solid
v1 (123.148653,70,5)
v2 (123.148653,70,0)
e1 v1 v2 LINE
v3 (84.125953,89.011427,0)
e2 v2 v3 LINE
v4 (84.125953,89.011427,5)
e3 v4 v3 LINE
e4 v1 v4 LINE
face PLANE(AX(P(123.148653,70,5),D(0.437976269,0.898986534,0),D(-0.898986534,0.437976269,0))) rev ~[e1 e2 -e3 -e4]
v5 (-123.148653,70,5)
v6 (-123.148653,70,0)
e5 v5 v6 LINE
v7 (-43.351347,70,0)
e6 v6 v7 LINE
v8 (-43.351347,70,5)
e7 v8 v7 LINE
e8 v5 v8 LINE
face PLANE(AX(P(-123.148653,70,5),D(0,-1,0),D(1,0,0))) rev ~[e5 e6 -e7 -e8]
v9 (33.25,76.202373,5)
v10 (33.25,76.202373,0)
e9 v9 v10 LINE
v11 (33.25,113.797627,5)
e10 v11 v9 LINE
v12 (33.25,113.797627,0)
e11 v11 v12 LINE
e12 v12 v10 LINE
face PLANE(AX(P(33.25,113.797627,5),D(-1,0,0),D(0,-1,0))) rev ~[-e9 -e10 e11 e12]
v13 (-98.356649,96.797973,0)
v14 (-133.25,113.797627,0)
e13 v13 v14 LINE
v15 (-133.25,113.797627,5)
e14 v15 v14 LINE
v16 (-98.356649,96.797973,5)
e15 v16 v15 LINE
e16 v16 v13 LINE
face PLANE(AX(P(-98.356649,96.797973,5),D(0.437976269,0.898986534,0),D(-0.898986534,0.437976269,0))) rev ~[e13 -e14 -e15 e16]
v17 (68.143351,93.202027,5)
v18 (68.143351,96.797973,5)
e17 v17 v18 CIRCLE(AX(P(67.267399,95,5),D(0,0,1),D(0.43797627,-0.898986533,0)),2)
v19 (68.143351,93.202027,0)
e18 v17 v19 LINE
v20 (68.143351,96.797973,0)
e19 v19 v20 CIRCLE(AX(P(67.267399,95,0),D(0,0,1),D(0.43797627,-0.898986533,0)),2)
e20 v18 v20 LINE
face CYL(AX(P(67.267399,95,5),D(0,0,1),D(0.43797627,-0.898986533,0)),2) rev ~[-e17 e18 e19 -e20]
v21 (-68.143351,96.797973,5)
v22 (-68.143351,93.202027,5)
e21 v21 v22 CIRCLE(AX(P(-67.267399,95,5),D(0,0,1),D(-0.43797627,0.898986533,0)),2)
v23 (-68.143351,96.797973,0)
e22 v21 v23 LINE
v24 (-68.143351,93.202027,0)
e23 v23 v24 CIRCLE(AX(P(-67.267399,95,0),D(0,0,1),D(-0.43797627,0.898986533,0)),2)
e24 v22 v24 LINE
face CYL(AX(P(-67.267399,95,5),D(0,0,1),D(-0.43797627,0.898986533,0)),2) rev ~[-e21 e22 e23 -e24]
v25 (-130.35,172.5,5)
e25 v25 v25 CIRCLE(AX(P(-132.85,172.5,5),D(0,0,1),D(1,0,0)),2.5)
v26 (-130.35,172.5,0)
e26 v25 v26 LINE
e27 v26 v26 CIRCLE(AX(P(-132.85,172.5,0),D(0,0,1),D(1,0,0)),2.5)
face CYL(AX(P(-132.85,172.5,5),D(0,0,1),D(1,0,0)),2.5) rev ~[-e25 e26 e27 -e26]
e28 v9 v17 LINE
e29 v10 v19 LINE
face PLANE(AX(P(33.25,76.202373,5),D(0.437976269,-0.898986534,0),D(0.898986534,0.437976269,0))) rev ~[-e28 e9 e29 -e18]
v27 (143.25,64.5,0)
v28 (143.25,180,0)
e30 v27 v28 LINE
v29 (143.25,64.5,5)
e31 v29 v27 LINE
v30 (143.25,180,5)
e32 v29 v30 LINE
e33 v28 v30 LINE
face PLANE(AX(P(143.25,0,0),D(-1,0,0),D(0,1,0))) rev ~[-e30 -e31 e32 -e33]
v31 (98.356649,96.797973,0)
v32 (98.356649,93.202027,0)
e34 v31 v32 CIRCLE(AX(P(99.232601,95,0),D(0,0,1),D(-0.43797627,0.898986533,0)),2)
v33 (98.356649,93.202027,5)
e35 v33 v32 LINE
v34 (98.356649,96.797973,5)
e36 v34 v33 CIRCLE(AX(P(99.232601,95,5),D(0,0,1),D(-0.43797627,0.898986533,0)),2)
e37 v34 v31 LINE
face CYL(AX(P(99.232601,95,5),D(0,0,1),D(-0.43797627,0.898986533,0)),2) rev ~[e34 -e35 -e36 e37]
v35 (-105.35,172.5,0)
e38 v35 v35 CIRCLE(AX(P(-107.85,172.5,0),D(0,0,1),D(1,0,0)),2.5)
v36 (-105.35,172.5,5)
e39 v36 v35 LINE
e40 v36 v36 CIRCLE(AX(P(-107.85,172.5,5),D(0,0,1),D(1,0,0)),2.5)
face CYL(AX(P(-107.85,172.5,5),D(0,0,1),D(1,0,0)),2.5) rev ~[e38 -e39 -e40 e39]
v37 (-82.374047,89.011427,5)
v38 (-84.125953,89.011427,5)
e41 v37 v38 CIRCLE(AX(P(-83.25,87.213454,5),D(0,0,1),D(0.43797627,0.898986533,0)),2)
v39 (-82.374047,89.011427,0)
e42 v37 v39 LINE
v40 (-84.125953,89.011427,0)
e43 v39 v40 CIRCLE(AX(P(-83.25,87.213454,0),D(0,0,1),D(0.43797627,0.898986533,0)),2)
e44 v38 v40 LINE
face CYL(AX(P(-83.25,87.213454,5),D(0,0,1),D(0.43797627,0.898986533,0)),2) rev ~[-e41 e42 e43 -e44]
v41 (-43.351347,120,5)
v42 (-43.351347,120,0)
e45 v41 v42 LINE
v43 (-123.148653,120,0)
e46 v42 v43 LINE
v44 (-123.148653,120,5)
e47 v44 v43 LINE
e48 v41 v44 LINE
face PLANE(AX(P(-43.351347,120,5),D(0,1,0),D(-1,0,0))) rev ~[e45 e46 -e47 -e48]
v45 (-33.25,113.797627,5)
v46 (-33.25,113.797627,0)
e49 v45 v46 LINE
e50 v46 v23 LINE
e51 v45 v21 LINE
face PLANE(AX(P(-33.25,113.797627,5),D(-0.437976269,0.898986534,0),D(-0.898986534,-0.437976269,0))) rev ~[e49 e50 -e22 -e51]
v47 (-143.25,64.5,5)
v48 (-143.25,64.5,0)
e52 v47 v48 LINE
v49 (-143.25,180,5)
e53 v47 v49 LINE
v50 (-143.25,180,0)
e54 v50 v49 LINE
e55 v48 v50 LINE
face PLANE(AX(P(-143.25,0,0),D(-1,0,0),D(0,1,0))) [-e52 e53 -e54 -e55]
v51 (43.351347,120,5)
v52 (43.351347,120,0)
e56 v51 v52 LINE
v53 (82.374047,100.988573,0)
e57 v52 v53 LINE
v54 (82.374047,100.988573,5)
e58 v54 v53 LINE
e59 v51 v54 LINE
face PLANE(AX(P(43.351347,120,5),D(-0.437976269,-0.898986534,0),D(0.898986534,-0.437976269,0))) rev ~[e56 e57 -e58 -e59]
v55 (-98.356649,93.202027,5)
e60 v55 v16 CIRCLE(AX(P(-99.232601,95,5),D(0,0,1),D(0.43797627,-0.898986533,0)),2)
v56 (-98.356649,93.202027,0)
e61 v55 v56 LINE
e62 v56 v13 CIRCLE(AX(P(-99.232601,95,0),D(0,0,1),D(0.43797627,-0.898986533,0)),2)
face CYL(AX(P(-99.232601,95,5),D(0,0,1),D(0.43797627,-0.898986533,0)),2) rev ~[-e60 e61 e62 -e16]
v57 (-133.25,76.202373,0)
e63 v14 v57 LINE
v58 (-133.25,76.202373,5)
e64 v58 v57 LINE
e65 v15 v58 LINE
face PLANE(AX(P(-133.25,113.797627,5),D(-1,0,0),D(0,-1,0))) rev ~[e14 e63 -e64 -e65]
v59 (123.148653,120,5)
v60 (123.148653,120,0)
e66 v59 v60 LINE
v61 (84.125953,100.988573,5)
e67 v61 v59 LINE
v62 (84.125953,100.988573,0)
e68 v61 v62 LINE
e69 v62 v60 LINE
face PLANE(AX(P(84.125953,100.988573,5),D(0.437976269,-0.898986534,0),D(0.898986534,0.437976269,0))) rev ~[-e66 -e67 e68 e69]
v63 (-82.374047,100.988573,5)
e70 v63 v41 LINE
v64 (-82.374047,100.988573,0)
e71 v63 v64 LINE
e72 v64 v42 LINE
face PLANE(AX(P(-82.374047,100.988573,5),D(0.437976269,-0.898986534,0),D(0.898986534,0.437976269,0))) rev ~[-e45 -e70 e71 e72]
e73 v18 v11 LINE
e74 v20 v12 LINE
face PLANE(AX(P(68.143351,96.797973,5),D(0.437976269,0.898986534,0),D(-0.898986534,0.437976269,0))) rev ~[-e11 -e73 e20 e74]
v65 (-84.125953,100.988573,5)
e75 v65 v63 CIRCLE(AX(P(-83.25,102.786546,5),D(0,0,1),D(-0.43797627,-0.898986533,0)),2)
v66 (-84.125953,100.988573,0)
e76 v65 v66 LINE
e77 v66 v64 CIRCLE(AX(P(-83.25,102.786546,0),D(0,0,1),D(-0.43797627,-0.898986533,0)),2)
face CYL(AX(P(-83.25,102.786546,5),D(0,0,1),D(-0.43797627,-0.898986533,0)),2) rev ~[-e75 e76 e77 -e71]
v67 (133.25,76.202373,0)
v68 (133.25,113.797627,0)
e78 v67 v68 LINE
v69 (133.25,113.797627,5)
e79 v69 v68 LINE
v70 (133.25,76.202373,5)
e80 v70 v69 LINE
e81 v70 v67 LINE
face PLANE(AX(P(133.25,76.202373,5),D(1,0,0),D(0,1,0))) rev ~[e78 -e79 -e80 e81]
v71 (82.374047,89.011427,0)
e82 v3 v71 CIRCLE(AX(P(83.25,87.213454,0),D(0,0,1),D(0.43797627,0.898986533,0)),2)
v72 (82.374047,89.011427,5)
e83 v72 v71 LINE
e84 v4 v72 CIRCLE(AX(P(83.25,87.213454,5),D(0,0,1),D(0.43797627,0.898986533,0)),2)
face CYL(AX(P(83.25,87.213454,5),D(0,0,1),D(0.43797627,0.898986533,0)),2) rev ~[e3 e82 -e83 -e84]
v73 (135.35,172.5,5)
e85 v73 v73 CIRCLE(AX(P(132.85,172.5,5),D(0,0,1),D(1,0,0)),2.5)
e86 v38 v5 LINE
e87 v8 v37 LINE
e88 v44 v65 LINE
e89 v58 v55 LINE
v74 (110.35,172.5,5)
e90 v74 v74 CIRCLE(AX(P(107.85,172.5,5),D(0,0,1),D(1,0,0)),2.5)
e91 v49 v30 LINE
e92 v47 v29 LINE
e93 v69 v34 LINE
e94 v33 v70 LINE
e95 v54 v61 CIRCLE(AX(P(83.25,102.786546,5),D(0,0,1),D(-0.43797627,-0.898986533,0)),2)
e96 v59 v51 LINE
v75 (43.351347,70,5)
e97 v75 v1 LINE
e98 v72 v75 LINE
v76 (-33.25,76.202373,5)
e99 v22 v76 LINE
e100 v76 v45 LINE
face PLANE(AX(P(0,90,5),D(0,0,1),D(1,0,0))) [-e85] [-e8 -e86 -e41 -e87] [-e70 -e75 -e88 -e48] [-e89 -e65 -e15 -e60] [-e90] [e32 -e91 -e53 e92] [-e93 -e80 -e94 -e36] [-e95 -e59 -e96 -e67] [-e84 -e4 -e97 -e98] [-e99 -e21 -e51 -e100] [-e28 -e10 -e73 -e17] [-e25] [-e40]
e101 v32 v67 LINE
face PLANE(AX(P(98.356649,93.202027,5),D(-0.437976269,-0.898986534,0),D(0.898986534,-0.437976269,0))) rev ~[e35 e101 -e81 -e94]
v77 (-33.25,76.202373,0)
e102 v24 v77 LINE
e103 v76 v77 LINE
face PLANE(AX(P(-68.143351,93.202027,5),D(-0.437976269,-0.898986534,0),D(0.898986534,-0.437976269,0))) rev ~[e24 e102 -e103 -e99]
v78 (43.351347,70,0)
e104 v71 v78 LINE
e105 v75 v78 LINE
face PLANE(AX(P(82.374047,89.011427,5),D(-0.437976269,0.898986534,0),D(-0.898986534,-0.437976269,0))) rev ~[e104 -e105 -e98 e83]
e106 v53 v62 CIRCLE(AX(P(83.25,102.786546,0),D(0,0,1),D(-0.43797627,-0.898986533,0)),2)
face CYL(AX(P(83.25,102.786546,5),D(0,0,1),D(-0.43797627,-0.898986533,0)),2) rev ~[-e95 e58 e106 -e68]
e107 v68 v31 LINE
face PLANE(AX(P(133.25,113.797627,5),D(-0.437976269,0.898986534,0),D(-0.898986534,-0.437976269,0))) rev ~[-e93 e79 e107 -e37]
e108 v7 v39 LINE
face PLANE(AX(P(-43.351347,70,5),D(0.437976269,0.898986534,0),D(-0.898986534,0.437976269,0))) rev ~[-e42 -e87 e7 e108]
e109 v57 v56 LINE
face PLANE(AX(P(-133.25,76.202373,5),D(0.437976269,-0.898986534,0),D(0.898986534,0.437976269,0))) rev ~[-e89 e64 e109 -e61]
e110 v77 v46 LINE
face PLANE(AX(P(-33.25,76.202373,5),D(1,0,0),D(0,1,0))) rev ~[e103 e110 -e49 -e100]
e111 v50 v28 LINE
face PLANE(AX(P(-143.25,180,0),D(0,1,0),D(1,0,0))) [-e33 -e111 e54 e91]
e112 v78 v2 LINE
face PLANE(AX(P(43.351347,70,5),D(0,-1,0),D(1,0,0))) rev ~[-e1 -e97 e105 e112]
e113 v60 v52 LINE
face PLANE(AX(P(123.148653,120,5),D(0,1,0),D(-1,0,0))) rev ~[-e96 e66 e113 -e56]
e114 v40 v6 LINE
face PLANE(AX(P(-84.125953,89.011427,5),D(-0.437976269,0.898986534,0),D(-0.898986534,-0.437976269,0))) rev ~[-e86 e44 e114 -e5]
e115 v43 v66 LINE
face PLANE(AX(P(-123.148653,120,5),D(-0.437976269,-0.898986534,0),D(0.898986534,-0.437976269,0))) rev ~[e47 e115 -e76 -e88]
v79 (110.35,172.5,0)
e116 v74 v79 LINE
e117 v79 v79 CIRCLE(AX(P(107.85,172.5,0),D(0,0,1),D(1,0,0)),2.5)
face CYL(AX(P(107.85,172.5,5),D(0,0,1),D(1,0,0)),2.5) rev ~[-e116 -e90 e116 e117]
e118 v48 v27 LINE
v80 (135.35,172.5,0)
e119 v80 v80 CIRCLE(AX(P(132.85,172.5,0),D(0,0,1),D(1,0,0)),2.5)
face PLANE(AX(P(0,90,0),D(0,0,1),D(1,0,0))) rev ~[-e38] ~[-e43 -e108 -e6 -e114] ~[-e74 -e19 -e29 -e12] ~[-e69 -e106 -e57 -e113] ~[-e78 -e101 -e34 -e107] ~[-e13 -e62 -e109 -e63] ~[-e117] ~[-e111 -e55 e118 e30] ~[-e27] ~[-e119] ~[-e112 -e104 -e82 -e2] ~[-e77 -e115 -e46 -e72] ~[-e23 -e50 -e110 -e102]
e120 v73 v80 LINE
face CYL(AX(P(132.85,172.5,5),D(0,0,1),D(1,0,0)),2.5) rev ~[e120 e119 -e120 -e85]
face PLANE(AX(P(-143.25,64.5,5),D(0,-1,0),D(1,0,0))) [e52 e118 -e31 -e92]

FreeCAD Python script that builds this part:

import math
import FreeCAD as App
import Part
import Sketcher


def add_polygon(sketch, points):
    """Adds a closed chain of lines whose ends are joined by coincident constraints."""
    first, n = sketch.GeometryCount, len(points)
    for a, b in zip(points, points[1:] + points[:1]):
        sketch.addGeometry(Part.LineSegment(App.Vector(*a, 0), App.Vector(*b, 0)), False)
    for i in range(n):
        sketch.addConstraint(Sketcher.Constraint("Coincident", first + i, 2, first + (i + 1) % n, 1))

doc = App.newDocument("Part")
params = doc.addObject("Spreadsheet::Sheet", "Params")
for row, (alias, value) in enumerate([
    ("sketch1_height", "180 mm"),
    ("sketch1_width", "286.5 mm"),
    ("pad1_length", "5 mm"),
    ("sketch2_diameter", "5 mm"),
    ("sketch2_radius", "2 mm"),
    ("pocket1_length", "13 mm"),
    ("sketch3_width", "286.5 mm"),
    ("sketch3_height", "64.5 mm"),
], start=1):
    params.set(f"A{row}", alias)
    params.set(f"B{row}", "=" + value)
    params.setAlias(f"B{row}", alias)

body = doc.addObject("PartDesign::Body", "Body")

sketch1 = doc.addObject("Sketcher::SketchObject", "Sketch")
body.addObject(sketch1)
sketch1.AttachmentSupport = (doc.XY_Plane, [""])
sketch1.MapMode = "FlatFace"
add_polygon(sketch1, [(-143, 180), (-143, 0), (143, 0), (143, 180)])
sketch1.addConstraint(Sketcher.Constraint("Vertical", 0))
sketch1.addConstraint(Sketcher.Constraint("Horizontal", 1))
sketch1.addConstraint(Sketcher.Constraint("Vertical", 2))
sketch1.addConstraint(Sketcher.Constraint("Horizontal", 3))
sketch1.addConstraint(Sketcher.Constraint("Symmetric", 0, 2, 1, 2, -1, 1))
sketch1.addConstraint(Sketcher.Constraint("DistanceY", 0, 2, 0, 1, 180.0))
sketch1.addConstraint(Sketcher.Constraint("DistanceX", 1, 1, 1, 2, 286.5))
sketch1.setExpression("Constraints[9]", "Params.sketch1_height")
sketch1.setExpression("Constraints[10]", "Params.sketch1_width")
pad1 = doc.addObject("PartDesign::Pad", "Pad")
body.addObject(pad1)
pad1.Profile = sketch1
pad1.setExpression("Length", "Params.pad1_length")

sketch2 = doc.addObject("Sketcher::SketchObject", "Sketch001")
body.addObject(sketch2)
sketch2.AttachmentSupport = (doc.XY_Plane, [""])
sketch2.MapMode = "FlatFace"
sketch2.AttachmentOffset = App.Placement(App.Vector(0, 0, 5), App.Rotation())
sketch2.addGeometry(Part.Circle(App.Vector(-132.8, 172.5, 0), App.Vector(0, 0, 1), 2.5), False)
sketch2.addGeometry(Part.Circle(App.Vector(-107.8, 172.5, 0), App.Vector(0, 0, 1), 2.5), False)
sketch2.addGeometry(Part.LineSegment(App.Vector(-82.4, 101, 0), App.Vector(-43.4, 120, 0)), False)
sketch2.addGeometry(Part.LineSegment(App.Vector(-43.4, 120, 0), App.Vector(-123.1, 120, 0)), False)
sketch2.addGeometry(Part.LineSegment(App.Vector(-123.1, 120, 0), App.Vector(-84.1, 101, 0)), False)
sketch2.addGeometry(Part.ArcOfCircle(Part.Circle(App.Vector(-83.2, 102.8, 0), App.Vector(0, 0, 1), 2), math.radians(-116), math.radians(-64)), False)
sketch2.addGeometry(Part.LineSegment(App.Vector(-133.2, 113.8, 0), App.Vector(-133.2, 76.2, 0)), False)
sketch2.addGeometry(Part.LineSegment(App.Vector(-133.2, 76.2, 0), App.Vector(-98.4, 93.2, 0)), False)
sketch2.addGeometry(Part.ArcOfCircle(Part.Circle(App.Vector(-99.2, 95, 0), App.Vector(0, 0, 1), 2), math.radians(-64), math.radians(64)), False)
sketch2.addGeometry(Part.LineSegment(App.Vector(-98.4, 96.8, 0), App.Vector(-133.2, 113.8, 0)), False)
sketch2.addGeometry(Part.LineSegment(App.Vector(-68.1, 93.2, 0), App.Vector(-33.2, 76.2, 0)), False)
sketch2.addGeometry(Part.LineSegment(App.Vector(-33.2, 76.2, 0), App.Vector(-33.2, 113.8, 0)), False)
sketch2.addGeometry(Part.LineSegment(App.Vector(-33.2, 113.8, 0), App.Vector(-68.1, 96.8, 0)), False)
sketch2.addGeometry(Part.ArcOfCircle(Part.Circle(App.Vector(-67.3, 95, 0), App.Vector(0, 0, 1), 2), math.radians(116), math.radians(244)), False)
sketch2.addGeometry(Part.LineSegment(App.Vector(-43.4, 70, 0), App.Vector(-82.4, 89, 0)), False)
sketch2.addGeometry(Part.ArcOfCircle(Part.Circle(App.Vector(-83.2, 87.2, 0), App.Vector(0, 0, 1), 2), math.radians(64), math.radians(116)), False)
sketch2.addGeometry(Part.LineSegment(App.Vector(-84.1, 89, 0), App.Vector(-123.1, 70, 0)), False)
sketch2.addGeometry(Part.LineSegment(App.Vector(-123.1, 70, 0), App.Vector(-43.4, 70, 0)), False)
sketch2.addGeometry(Part.LineSegment(App.Vector(-43.4, 60, 0), App.Vector(-123.1, 60, 0)), False)
sketch2.addGeometry(Part.LineSegment(App.Vector(-123.1, 60, 0), App.Vector(-84.1, 41, 0)), False)
sketch2.addGeometry(Part.ArcOfCircle(Part.Circle(App.Vector(-83.2, 42.8, 0), App.Vector(0, 0, 1), 2), math.radians(-116), math.radians(-64)), False)
sketch2.addGeometry(Part.LineSegment(App.Vector(-82.4, 41, 0), App.Vector(-43.4, 60, 0)), False)
sketch2.addGeometry(Part.LineSegment(App.Vector(-98.4, 36.8, 0), App.Vector(-133.2, 53.8, 0)), False)
sketch2.addGeometry(Part.LineSegment(App.Vector(-133.2, 53.8, 0), App.Vector(-133.2, 16.2, 0)), False)
sketch2.addGeometry(Part.LineSegment(App.Vector(-133.2, 16.2, 0), App.Vector(-98.4, 33.2, 0)), False)
sketch2.addGeometry(Part.ArcOfCircle(Part.Circle(App.Vector(-99.2, 35, 0), App.Vector(0, 0, 1), 2), math.radians(-64), math.radians(64)), False)
sketch2.addGeometry(Part.LineSegment(App.Vector(-33.2, 16.2, 0), App.Vector(-33.2, 53.8, 0)), False)
sketch2.addGeometry(Part.LineSegment(App.Vector(-33.2, 53.8, 0), App.Vector(-68.1, 36.8, 0)), False)
sketch2.addGeometry(Part.ArcOfCircle(Part.Circle(App.Vector(-67.3, 35, 0), App.Vector(0, 0, 1), 2), math.radians(116), math.radians(244)), False)
sketch2.addGeometry(Part.LineSegment(App.Vector(-68.1, 33.2, 0), App.Vector(-33.2, 16.2, 0)), False)
sketch2.addGeometry(Part.LineSegment(App.Vector(-84.1, 29, 0), App.Vector(-123.1, 10, 0)), False)
sketch2.addGeometry(Part.LineSegment(App.Vector(-123.1, 10, 0), App.Vector(-43.4, 10, 0)), False)
sketch2.addGeometry(Part.LineSegment(App.Vector(-43.4, 10, 0), App.Vector(-82.4, 29, 0)), False)
sketch2.addGeometry(Part.ArcOfCircle(Part.Circle(App.Vector(-83.2, 27.2, 0), App.Vector(0, 0, 1), 2), math.radians(64), math.radians(116)), False)
sketch2.addGeometry(Part.LineSegment(App.Vector(84.1, 101, 0), App.Vector(123.1, 120, 0)), False)
sketch2.addGeometry(Part.LineSegment(App.Vector(123.1, 120, 0), App.Vector(43.4, 120, 0)), False)
sketch2.addGeometry(Part.LineSegment(App.Vector(43.4, 120, 0), App.Vector(82.4, 101, 0)), False)
sketch2.addGeometry(Part.ArcOfCircle(Part.Circle(App.Vector(83.2, 102.8, 0), App.Vector(0, 0, 1), 2), math.radians(-116), math.radians(-64)), False)
sketch2.addGeometry(Part.LineSegment(App.Vector(33.2, 113.8, 0), App.Vector(33.2, 76.2, 0)), False)
sketch2.addGeometry(Part.LineSegment(App.Vector(33.2, 76.2, 0), App.Vector(68.1, 93.2, 0)), False)
sketch2.addGeometry(Part.ArcOfCircle(Part.Circle(App.Vector(67.3, 95, 0), App.Vector(0, 0, 1), 2), math.radians(-64), math.radians(64)), False)
sketch2.addGeometry(Part.LineSegment(App.Vector(68.1, 96.8, 0), App.Vector(33.2, 113.8, 0)), False)
sketch2.addGeometry(Part.LineSegment(App.Vector(98.4, 93.2, 0), App.Vector(133.2, 76.2, 0)), False)
sketch2.addGeometry(Part.LineSegment(App.Vector(133.2, 76.2, 0), App.Vector(133.2, 113.8, 0)), False)
sketch2.addGeometry(Part.LineSegment(App.Vector(133.2, 113.8, 0), App.Vector(98.4, 96.8, 0)), False)
sketch2.addGeometry(Part.ArcOfCircle(Part.Circle(App.Vector(99.2, 95, 0), App.Vector(0, 0, 1), 2), math.radians(116), math.radians(244)), False)
sketch2.addGeometry(Part.LineSegment(App.Vector(43.4, 70, 0), App.Vector(123.1, 70, 0)), False)
sketch2.addGeometry(Part.LineSegment(App.Vector(123.1, 70, 0), App.Vector(84.1, 89, 0)), False)
sketch2.addGeometry(Part.ArcOfCircle(Part.Circle(App.Vector(83.2, 87.2, 0), App.Vector(0, 0, 1), 2), math.radians(64), math.radians(116)), False)
sketch2.addGeometry(Part.LineSegment(App.Vector(82.4, 89, 0), App.Vector(43.4, 70, 0)), False)
sketch2.addGeometry(Part.LineSegment(App.Vector(43.4, 60, 0), App.Vector(82.4, 41, 0)), False)
sketch2.addGeometry(Part.ArcOfCircle(Part.Circle(App.Vector(83.2, 42.8, 0), App.Vector(0, 0, 1), 2), math.radians(-116), math.radians(-64)), False)
sketch2.addGeometry(Part.LineSegment(App.Vector(84.1, 41, 0), App.Vector(123.1, 60, 0)), False)
sketch2.addGeometry(Part.LineSegment(App.Vector(123.1, 60, 0), App.Vector(43.4, 60, 0)), False)
sketch2.addGeometry(Part.LineSegment(App.Vector(68.1, 36.8, 0), App.Vector(33.2, 53.8, 0)), False)
sketch2.addGeometry(Part.LineSegment(App.Vector(33.2, 53.8, 0), App.Vector(33.2, 16.2, 0)), False)
sketch2.addGeometry(Part.LineSegment(App.Vector(33.2, 16.2, 0), App.Vector(68.1, 33.2, 0)), False)
sketch2.addGeometry(Part.ArcOfCircle(Part.Circle(App.Vector(67.3, 35, 0), App.Vector(0, 0, 1), 2), math.radians(-64), math.radians(64)), False)
sketch2.addGeometry(Part.LineSegment(App.Vector(133.2, 16.2, 0), App.Vector(133.2, 53.8, 0)), False)
sketch2.addGeometry(Part.LineSegment(App.Vector(133.2, 53.8, 0), App.Vector(98.4, 36.8, 0)), False)
sketch2.addGeometry(Part.ArcOfCircle(Part.Circle(App.Vector(99.2, 35, 0), App.Vector(0, 0, 1), 2), math.radians(116), math.radians(244)), False)
sketch2.addGeometry(Part.LineSegment(App.Vector(98.4, 33.2, 0), App.Vector(133.2, 16.2, 0)), False)
sketch2.addGeometry(Part.LineSegment(App.Vector(82.4, 29, 0), App.Vector(43.4, 10, 0)), False)
sketch2.addGeometry(Part.LineSegment(App.Vector(43.4, 10, 0), App.Vector(123.1, 10, 0)), False)
sketch2.addGeometry(Part.LineSegment(App.Vector(123.1, 10, 0), App.Vector(84.1, 29, 0)), False)
sketch2.addGeometry(Part.ArcOfCircle(Part.Circle(App.Vector(83.2, 27.2, 0), App.Vector(0, 0, 1), 2), math.radians(64), math.radians(116)), False)
sketch2.addGeometry(Part.Circle(App.Vector(107.8, 172.5, 0), App.Vector(0, 0, 1), 2.5), False)
sketch2.addGeometry(Part.Circle(App.Vector(132.8, 172.5, 0), App.Vector(0, 0, 1), 2.5), False)
sketch2.addConstraint(Sketcher.Constraint("Coincident", 2, 2, 3, 1))
sketch2.addConstraint(Sketcher.Constraint("Coincident", 3, 2, 4, 1))
sketch2.addConstraint(Sketcher.Constraint("Tangent", 4, 2, 5, 1))
sketch2.addConstraint(Sketcher.Constraint("Tangent", 5, 2, 2, 1))
sketch2.addConstraint(Sketcher.Constraint("Coincident", 6, 2, 7, 1))
sketch2.addConstraint(Sketcher.Constraint("Tangent", 7, 2, 8, 1))
sketch2.addConstraint(Sketcher.Constraint("Tangent", 8, 2, 9, 1))
sketch2.addConstraint(Sketcher.Constraint("Coincident", 9, 2, 6, 1))
sketch2.addConstraint(Sketcher.Constraint("Coincident", 10, 2, 11, 1))
sketch2.addConstraint(Sketcher.Constraint("Coincident", 11, 2, 12, 1))
sketch2.addConstraint(Sketcher.Constraint("Tangent", 12, 2, 13, 1))
sketch2.addConstraint(Sketcher.Constraint("Tangent", 13, 2, 10, 1))
sketch2.addConstraint(Sketcher.Constraint("Tangent", 14, 2, 15, 1))
sketch2.addConstraint(Sketcher.Constraint("Tangent", 15, 2, 16, 1))
sketch2.addConstraint(Sketcher.Constraint("Coincident", 16, 2, 17, 1))
sketch2.addConstraint(Sketcher.Constraint("Coincident", 17, 2, 14, 1))
sketch2.addConstraint(Sketcher.Constraint("Coincident", 18, 2, 19, 1))
sketch2.addConstraint(Sketcher.Constraint("Tangent", 19, 2, 20, 1))
sketch2.addConstraint(Sketcher.Constraint("Tangent", 20, 2, 21, 1))
sketch2.addConstraint(Sketcher.Constraint("Coincident", 21, 2, 18, 1))
sketch2.addConstraint(Sketcher.Constraint("Coincident", 22, 2, 23, 1))
sketch2.addConstraint(Sketcher.Constraint("Coincident", 23, 2, 24, 1))
sketch2.addConstraint(Sketcher.Constraint("Tangent", 24, 2, 25, 1))
sketch2.addConstraint(Sketcher.Constraint("Tangent", 25, 2, 22, 1))
sketch2.addConstraint(Sketcher.Constraint("Coincident", 26, 2, 27, 1))
sketch2.addConstraint(Sketcher.Constraint("Tangent", 27, 2, 28, 1))
sketch2.addConstraint(Sketcher.Constraint("Tangent", 28, 2, 29, 1))
sketch2.addConstraint(Sketcher.Constraint("Coincident", 29, 2, 26, 1))
sketch2.addConstraint(Sketcher.Constraint("Coincident", 30, 2, 31, 1))
sketch2.addConstraint(Sketcher.Constraint("Coincident", 31, 2, 32, 1))
sketch2.addConstraint(Sketcher.Constraint("Tangent", 32, 2, 33, 1))
sketch2.addConstraint(Sketcher.Constraint("Tangent", 33, 2, 30, 1))
sketch2.addConstraint(Sketcher.Constraint("Coincident", 34, 2, 35, 1))
sketch2.addConstraint(Sketcher.Constraint("Coincident", 35, 2, 36, 1))
sketch2.addConstraint(Sketcher.Constraint("Tangent", 36, 2, 37, 1))
sketch2.addConstraint(Sketcher.Constraint("Tangent", 37, 2, 34, 1))
sketch2.addConstraint(Sketcher.Constraint("Coincident", 38, 2, 39, 1))
sketch2.addConstraint(Sketcher.Constraint("Tangent", 39, 2, 40, 1))
sketch2.addConstraint(Sketcher.Constraint("Tangent", 40, 2, 41, 1))
sketch2.addConstraint(Sketcher.Constraint("Coincident", 41, 2, 38, 1))
sketch2.addConstraint(Sketcher.Constraint("Coincident", 42, 2, 43, 1))
sketch2.addConstraint(Sketcher.Constraint("Coincident", 43, 2, 44, 1))
sketch2.addConstraint(Sketcher.Constraint("Tangent", 44, 2, 45, 1))
sketch2.addConstraint(Sketcher.Constraint("Tangent", 45, 2, 42, 1))
sketch2.addConstraint(Sketcher.Constraint("Coincident", 46, 2, 47, 1))
sketch2.addConstraint(Sketcher.Constraint("Tangent", 47, 2, 48, 1))
sketch2.addConstraint(Sketcher.Constraint("Tangent", 48, 2, 49, 1))
sketch2.addConstraint(Sketcher.Constraint("Coincident", 49, 2, 46, 1))
sketch2.addConstraint(Sketcher.Constraint("Tangent", 50, 2, 51, 1))
sketch2.addConstraint(Sketcher.Constraint("Tangent", 51, 2, 52, 1))
sketch2.addConstraint(Sketcher.Constraint("Coincident", 52, 2, 53, 1))
sketch2.addConstraint(Sketcher.Constraint("Coincident", 53, 2, 50, 1))
sketch2.addConstraint(Sketcher.Constraint("Coincident", 54, 2, 55, 1))
sketch2.addConstraint(Sketcher.Constraint("Coincident", 55, 2, 56, 1))
sketch2.addConstraint(Sketcher.Constraint("Tangent", 56, 2, 57, 1))
sketch2.addConstraint(Sketcher.Constraint("Tangent", 57, 2, 54, 1))
sketch2.addConstraint(Sketcher.Constraint("Coincident", 58, 2, 59, 1))
sketch2.addConstraint(Sketcher.Constraint("Tangent", 59, 2, 60, 1))
sketch2.addConstraint(Sketcher.Constraint("Tangent", 60, 2, 61, 1))
sketch2.addConstraint(Sketcher.Constraint("Coincident", 61, 2, 58, 1))
sketch2.addConstraint(Sketcher.Constraint("Coincident", 62, 2, 63, 1))
sketch2.addConstraint(Sketcher.Constraint("Coincident", 63, 2, 64, 1))
sketch2.addConstraint(Sketcher.Constraint("Tangent", 64, 2, 65, 1))
sketch2.addConstraint(Sketcher.Constraint("Tangent", 65, 2, 62, 1))
sketch2.addConstraint(Sketcher.Constraint("Horizontal", 3))
sketch2.addConstraint(Sketcher.Constraint("Vertical", 6))
sketch2.addConstraint(Sketcher.Constraint("Vertical", 11))
sketch2.addConstraint(Sketcher.Constraint("Horizontal", 17))
sketch2.addConstraint(Sketcher.Constraint("Horizontal", 18))
sketch2.addConstraint(Sketcher.Constraint("Vertical", 23))
sketch2.addConstraint(Sketcher.Constraint("Vertical", 26))
sketch2.addConstraint(Sketcher.Constraint("Horizontal", 31))
sketch2.addConstraint(Sketcher.Constraint("Horizontal", 35))
sketch2.addConstraint(Sketcher.Constraint("Vertical", 38))
sketch2.addConstraint(Sketcher.Constraint("Vertical", 43))
sketch2.addConstraint(Sketcher.Constraint("Horizontal", 46))
sketch2.addConstraint(Sketcher.Constraint("Horizontal", 53))
sketch2.addConstraint(Sketcher.Constraint("Vertical", 55))
sketch2.addConstraint(Sketcher.Constraint("Vertical", 58))
sketch2.addConstraint(Sketcher.Constraint("Horizontal", 63))
sketch2.addConstraint(Sketcher.Constraint("Equal", 0, 1))
sketch2.addConstraint(Sketcher.Constraint("Equal", 5, 8))
sketch2.addConstraint(Sketcher.Constraint("Equal", 8, 13))
sketch2.addConstraint(Sketcher.Constraint("Equal", 13, 15))
sketch2.addConstraint(Sketcher.Constraint("Equal", 15, 20))
sketch2.addConstraint(Sketcher.Constraint("Equal", 20, 25))
sketch2.addConstraint(Sketcher.Constraint("Equal", 25, 28))
sketch2.addConstraint(Sketcher.Constraint("Equal", 28, 33))
sketch2.addConstraint(Sketcher.Constraint("Equal", 33, 37))
sketch2.addConstraint(Sketcher.Constraint("Equal", 37, 40))
sketch2.addConstraint(Sketcher.Constraint("Equal", 40, 45))
sketch2.addConstraint(Sketcher.Constraint("Equal", 45, 48))
sketch2.addConstraint(Sketcher.Constraint("Equal", 48, 51))
sketch2.addConstraint(Sketcher.Constraint("Equal", 51, 57))
sketch2.addConstraint(Sketcher.Constraint("Equal", 57, 60))
sketch2.addConstraint(Sketcher.Constraint("Equal", 60, 65))
sketch2.addConstraint(Sketcher.Constraint("Equal", 1, 66))
sketch2.addConstraint(Sketcher.Constraint("Equal", 66, 67))
sketch2.addConstraint(Sketcher.Constraint("Symmetric", 5, 3, 37, 3, -2))
sketch2.addConstraint(Sketcher.Constraint("Symmetric", 13, 3, 40, 3, -2))
sketch2.addConstraint(Sketcher.Constraint("Symmetric", 8, 3, 45, 3, -2))
sketch2.addConstraint(Sketcher.Constraint("Symmetric", 15, 3, 48, 3, -2))
sketch2.addConstraint(Sketcher.Constraint("Symmetric", 20, 3, 51, 3, -2))
sketch2.addConstraint(Sketcher.Constraint("Symmetric", 28, 3, 57, 3, -2))
sketch2.addConstraint(Sketcher.Constraint("Symmetric", 25, 3, 60, 3, -2))
sketch2.addConstraint(Sketcher.Constraint("Symmetric", 33, 3, 65, 3, -2))
sketch2.addConstraint(Sketcher.Constraint("Symmetric", 1, 3, 66, 3, -2))
sketch2.addConstraint(Sketcher.Constraint("Symmetric", 0, 3, 67, 3, -2))
sketch2.addConstraint(Sketcher.Constraint("Symmetric", 3, 2, 34, 2, -2))
sketch2.addConstraint(Sketcher.Constraint("Symmetric", 10, 2, 38, 2, -2))
sketch2.addConstraint(Sketcher.Constraint("Symmetric", 6, 2, 42, 2, -2))
sketch2.addConstraint(Sketcher.Constraint("Symmetric", 16, 2, 46, 2, -2))
sketch2.addConstraint(Sketcher.Constraint("Symmetric", 18, 2, 52, 2, -2))
sketch2.addConstraint(Sketcher.Constraint("Symmetric", 26, 2, 54, 2, -2))
sketch2.addConstraint(Sketcher.Constraint("Symmetric", 22, 2, 58, 2, -2))
sketch2.addConstraint(Sketcher.Constraint("Symmetric", 31, 2, 62, 2, -2))
sketch2.addConstraint(Sketcher.Constraint("Parallel", 2, 7))
sketch2.addConstraint(Sketcher.Constraint("Parallel", 4, 9))
sketch2.addConstraint(Sketcher.Constraint("Parallel", 9, 10))
sketch2.addConstraint(Sketcher.Constraint("Parallel", 7, 12))
sketch2.addConstraint(Sketcher.Constraint("Parallel", 10, 14))
sketch2.addConstraint(Sketcher.Constraint("Parallel", 12, 16))
sketch2.addConstraint(Sketcher.Constraint("Parallel", 14, 19))
sketch2.addConstraint(Sketcher.Constraint("Parallel", 16, 21))
sketch2.addConstraint(Sketcher.Constraint("Parallel", 19, 22))
sketch2.addConstraint(Sketcher.Constraint("Parallel", 21, 24))
sketch2.addConstraint(Sketcher.Constraint("Parallel", 24, 27))
sketch2.addConstraint(Sketcher.Constraint("Parallel", 22, 29))
sketch2.addConstraint(Sketcher.Constraint("Parallel", 27, 30))
sketch2.addConstraint(Sketcher.Constraint("Parallel", 29, 32))
sketch2.addConstraint(Sketcher.Constraint("Parallel", 30, 34))
sketch2.addConstraint(Sketcher.Constraint("Parallel", 32, 36))
sketch2.addConstraint(Sketcher.Constraint("Parallel", 36, 41))
sketch2.addConstraint(Sketcher.Constraint("Parallel", 39, 44))
sketch2.addConstraint(Sketcher.Constraint("Parallel", 44, 49))
sketch2.addConstraint(Sketcher.Constraint("Parallel", 47, 50))
sketch2.addConstraint(Sketcher.Constraint("Parallel", 52, 56))
sketch2.addConstraint(Sketcher.Constraint("Parallel", 54, 61))
sketch2.addConstraint(Sketcher.Constraint("Parallel", 61, 64))
sketch2.addConstraint(Sketcher.Constraint("Horizontal", 0, 3, 1, 3))
sketch2.addConstraint(Sketcher.Constraint("Horizontal", 8, 3, 13, 3))
sketch2.addConstraint(Sketcher.Constraint("Horizontal", 25, 3, 28, 3))
sketch2.addConstraint(Sketcher.Constraint("Horizontal", 6, 2, 10, 2))
sketch2.addConstraint(Sketcher.Constraint("Horizontal", 22, 2, 26, 2))
sketch2.addConstraint(Sketcher.Constraint("Vertical", 5, 3, 15, 3))
sketch2.addConstraint(Sketcher.Constraint("Vertical", 15, 3, 20, 3))
sketch2.addConstraint(Sketcher.Constraint("Vertical", 8, 3, 25, 3))
sketch2.addConstraint(Sketcher.Constraint("Vertical", 13, 3, 28, 3))
sketch2.addConstraint(Sketcher.Constraint("Vertical", 20, 3, 33, 3))
sketch2.addConstraint(Sketcher.Constraint("Vertical", 3, 2, 16, 2))
sketch2.addConstraint(Sketcher.Constraint("Vertical", 16, 2, 18, 2))
sketch2.addConstraint(Sketcher.Constraint("Vertical", 9, 2, 22, 2))
sketch2.addConstraint(Sketcher.Constraint("Vertical", 18, 2, 30, 2))
sketch2.addConstraint(Sketcher.Constraint("Diameter", 0, 5.0))
sketch2.addConstraint(Sketcher.Constraint("Radius", 5, 2.0))
sketch2.addConstraint(Sketcher.Constraint("DistanceY", -1, 1, 8, 3, 95.0))
sketch2.addConstraint(Sketcher.Constraint("DistanceY", -1, 1, 25, 3, 35.0))
sketch2.addConstraint(Sketcher.Constraint("DistanceY", -1, 1, 2, 2, 120.0))
sketch2.addConstraint(Sketcher.Constraint("DistanceY", -1, 1, 16, 2, 70.0))
sketch2.addConstraint(Sketcher.Constraint("DistanceY", -1, 1, 18, 2, 60.0))
sketch2.addConstraint(Sketcher.Constraint("DistanceY", -1, 1, 30, 2, 10.0))
sketch2.addConstraint(Sketcher.Constraint("DistanceY", -1, 1, 0, 3, 172.5))
sketch2.addConstraint(Sketcher.Constraint("DistanceX", 0, 3, -1, 1, 132.85))
sketch2.addConstraint(Sketcher.Constraint("DistanceX", 1, 3, -1, 1, 107.85))
sketch2.addConstraint(Sketcher.Constraint("DistanceX", 5, 3, -1, 1, 83.25))
sketch2.addConstraint(Sketcher.Constraint("DistanceX", 6, 2, -1, 1, 133.25))
sketch2.addConstraint(Sketcher.Constraint("DistanceX", 10, 2, -1, 1, 33.25))
sketch2.addConstraint(Sketcher.Constraint("Distance", 7, 38.814098))
sketch2.addConstraint(Sketcher.Constraint("DistanceX", 8, 3, -1, 1, 99.232601))
sketch2.addConstraint(Sketcher.Constraint("DistanceX", 3, 2, 3, 1, 79.797307))
sketch2.setExpression("Constraints[153]", "Params.sketch2_diameter")
sketch2.setExpression("Constraints[154]", "Params.sketch2_radius")
pocket1 = doc.addObject("PartDesign::Pocket", "Pocket")
body.addObject(pocket1)
pocket1.Profile = sketch2
pocket1.setExpression("Length", "Params.pocket1_length")

sketch3 = doc.addObject("Sketcher::SketchObject", "Sketch002")
body.addObject(sketch3)
sketch3.AttachmentSupport = (doc.XY_Plane, [""])
sketch3.MapMode = "FlatFace"
sketch3.AttachmentOffset = App.Placement(App.Vector(0, 0, 5), App.Rotation())
add_polygon(sketch3, [(-143, 64), (-143, 0), (143, 0), (143, 64)])
sketch3.addConstraint(Sketcher.Constraint("Vertical", 0))
sketch3.addConstraint(Sketcher.Constraint("Horizontal", 1))
sketch3.addConstraint(Sketcher.Constraint("Vertical", 2))
sketch3.addConstraint(Sketcher.Constraint("Horizontal", 3))
sketch3.addConstraint(Sketcher.Constraint("Symmetric", 0, 2, 1, 2, -1, 1))
sketch3.addConstraint(Sketcher.Constraint("DistanceX", 1, 1, 1, 2, 286.5))
sketch3.addConstraint(Sketcher.Constraint("DistanceY", 0, 2, 0, 1, 64.5))
sketch3.setExpression("Constraints[9]", "Params.sketch3_width")
sketch3.setExpression("Constraints[10]", "Params.sketch3_height")
pocket2 = doc.addObject("PartDesign::Pocket", "Pocket001")
body.addObject(pocket2)
pocket2.Profile = sketch3
pocket2.Type = "ThroughAll"

doc.recompute()
